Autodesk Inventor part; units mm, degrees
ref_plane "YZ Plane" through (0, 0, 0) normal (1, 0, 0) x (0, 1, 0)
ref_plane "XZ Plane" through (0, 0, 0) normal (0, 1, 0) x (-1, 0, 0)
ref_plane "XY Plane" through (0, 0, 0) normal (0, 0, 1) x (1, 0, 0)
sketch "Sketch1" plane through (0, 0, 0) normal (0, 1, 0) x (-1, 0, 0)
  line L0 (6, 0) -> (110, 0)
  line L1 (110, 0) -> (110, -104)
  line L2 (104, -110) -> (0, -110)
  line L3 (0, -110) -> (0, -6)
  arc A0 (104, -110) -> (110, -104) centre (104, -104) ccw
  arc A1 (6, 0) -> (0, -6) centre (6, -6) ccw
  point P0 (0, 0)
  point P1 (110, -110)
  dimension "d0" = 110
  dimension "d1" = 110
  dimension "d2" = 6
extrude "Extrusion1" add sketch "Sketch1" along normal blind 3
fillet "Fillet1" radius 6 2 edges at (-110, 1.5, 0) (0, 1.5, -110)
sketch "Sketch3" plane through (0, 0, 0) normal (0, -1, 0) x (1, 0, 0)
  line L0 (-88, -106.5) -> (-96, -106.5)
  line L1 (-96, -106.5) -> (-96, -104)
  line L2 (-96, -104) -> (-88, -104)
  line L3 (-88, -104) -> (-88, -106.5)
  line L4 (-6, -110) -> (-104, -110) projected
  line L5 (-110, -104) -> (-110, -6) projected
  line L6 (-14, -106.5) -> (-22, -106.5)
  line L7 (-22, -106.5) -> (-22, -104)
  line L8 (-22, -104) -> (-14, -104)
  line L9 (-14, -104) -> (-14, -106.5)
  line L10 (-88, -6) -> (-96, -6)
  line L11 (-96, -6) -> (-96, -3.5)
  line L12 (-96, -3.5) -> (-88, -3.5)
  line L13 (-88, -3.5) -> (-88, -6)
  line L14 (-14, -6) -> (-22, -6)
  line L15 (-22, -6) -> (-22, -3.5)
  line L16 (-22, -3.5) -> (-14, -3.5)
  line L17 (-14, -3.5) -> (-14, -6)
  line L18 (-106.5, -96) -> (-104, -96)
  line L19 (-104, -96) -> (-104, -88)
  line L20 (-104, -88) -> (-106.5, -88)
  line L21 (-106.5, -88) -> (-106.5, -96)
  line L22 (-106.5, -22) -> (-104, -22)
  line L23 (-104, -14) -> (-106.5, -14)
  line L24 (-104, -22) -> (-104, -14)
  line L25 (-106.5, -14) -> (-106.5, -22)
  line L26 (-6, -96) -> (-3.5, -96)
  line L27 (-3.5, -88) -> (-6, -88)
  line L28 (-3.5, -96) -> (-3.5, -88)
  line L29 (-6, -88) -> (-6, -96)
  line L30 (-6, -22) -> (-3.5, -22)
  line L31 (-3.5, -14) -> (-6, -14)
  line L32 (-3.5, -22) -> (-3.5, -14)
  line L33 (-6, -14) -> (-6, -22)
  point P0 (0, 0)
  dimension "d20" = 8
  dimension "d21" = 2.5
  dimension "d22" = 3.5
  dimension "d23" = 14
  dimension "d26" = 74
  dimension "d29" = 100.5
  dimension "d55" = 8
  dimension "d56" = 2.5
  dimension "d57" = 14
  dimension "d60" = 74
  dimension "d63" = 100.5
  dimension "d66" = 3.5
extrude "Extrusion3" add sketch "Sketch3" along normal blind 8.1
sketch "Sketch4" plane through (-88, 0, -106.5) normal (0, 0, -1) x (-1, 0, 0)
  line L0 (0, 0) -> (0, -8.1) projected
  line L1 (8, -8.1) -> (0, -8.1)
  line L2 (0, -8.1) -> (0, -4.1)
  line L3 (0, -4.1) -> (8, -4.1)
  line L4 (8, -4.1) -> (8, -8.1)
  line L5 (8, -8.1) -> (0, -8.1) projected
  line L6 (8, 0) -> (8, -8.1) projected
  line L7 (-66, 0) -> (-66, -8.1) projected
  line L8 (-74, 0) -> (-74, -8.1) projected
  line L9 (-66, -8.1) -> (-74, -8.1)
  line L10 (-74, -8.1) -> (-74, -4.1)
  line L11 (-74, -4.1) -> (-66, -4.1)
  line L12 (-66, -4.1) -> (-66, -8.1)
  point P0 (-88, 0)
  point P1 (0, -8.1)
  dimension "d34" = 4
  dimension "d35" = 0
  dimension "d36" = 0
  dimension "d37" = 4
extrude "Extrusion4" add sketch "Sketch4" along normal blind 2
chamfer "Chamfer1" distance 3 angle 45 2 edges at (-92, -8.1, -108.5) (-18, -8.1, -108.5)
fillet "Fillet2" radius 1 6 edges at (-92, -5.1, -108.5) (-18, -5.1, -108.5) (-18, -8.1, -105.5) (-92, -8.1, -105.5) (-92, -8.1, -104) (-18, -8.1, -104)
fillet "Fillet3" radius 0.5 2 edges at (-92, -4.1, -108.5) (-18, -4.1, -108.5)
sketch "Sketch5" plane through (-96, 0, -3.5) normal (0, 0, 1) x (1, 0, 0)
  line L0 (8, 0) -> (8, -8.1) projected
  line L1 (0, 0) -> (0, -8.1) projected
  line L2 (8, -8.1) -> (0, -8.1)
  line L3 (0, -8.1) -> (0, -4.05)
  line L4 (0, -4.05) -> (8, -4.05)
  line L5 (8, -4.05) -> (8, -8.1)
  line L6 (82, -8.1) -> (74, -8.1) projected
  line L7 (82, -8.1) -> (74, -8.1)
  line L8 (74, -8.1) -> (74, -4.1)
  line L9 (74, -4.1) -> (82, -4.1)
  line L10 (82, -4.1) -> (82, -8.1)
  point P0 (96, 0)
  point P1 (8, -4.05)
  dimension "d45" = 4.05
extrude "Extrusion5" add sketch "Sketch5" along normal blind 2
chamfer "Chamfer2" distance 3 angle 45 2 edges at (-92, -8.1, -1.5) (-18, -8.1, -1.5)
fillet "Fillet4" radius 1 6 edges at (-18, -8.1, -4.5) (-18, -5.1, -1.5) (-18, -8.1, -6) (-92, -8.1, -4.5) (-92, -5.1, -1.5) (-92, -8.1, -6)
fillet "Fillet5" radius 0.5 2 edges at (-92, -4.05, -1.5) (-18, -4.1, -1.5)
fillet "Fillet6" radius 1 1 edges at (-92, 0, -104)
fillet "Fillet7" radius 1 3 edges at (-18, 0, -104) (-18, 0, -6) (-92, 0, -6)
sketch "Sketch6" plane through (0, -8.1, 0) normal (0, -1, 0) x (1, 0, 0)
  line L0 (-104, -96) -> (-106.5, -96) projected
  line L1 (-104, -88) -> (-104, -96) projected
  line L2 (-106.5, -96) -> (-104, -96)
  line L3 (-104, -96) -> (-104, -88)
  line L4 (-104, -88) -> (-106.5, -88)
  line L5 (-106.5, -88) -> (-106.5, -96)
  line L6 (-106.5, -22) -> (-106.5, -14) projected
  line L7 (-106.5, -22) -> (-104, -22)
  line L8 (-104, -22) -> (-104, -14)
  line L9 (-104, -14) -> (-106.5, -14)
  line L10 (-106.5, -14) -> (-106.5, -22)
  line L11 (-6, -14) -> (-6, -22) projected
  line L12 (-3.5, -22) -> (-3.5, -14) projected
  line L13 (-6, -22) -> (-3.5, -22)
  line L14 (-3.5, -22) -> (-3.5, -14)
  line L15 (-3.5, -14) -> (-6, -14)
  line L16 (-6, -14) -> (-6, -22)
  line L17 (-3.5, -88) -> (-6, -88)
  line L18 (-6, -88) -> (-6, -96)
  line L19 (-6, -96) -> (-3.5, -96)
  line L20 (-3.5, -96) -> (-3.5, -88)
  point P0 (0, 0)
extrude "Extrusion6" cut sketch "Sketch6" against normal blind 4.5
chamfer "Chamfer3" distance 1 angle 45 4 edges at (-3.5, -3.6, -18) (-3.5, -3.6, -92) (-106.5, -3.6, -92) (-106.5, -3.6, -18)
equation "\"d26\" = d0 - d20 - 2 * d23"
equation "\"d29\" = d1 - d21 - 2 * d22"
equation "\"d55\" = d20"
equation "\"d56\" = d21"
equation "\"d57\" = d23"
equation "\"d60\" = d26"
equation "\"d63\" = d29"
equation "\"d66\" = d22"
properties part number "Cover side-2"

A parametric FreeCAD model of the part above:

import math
import FreeCAD as App
import Part
import Sketcher


def edges_at(feature, points):
    """Names of the edges that pass closest to the given points."""
    edges = feature.Shape.Edges
    near = lambda p: min(range(len(edges)), key=lambda i: edges[i].distToShape(Part.Vertex(*p))[0])
    return sorted({f"Edge{near(p) + 1}" for p in points})

doc = App.newDocument("Part")
params = doc.addObject("Spreadsheet::Sheet", "Params")
for row, (alias, value) in enumerate([
    ("sketch1_radius", "6 mm"),
    ("pad1_length", "3 mm"),
    ("fillet_radius", "6 mm"),
    ("sketch2_width", "8 mm"),
    ("sketch2_width2", "2.5 mm"),
    ("pad2_length", "8.1 mm"),
    ("sketch3_height", "4 mm"),
    ("sketch3_width", "8 mm"),
    ("pad3_length", "2 mm"),
    ("chamfer_size", "3 mm"),
    ("fillet2_radius", "1 mm"),
    ("fillet3_radius", "0.5 mm"),
    ("sketch4_height", "4.05 mm"),
    ("sketch4_width", "8 mm"),
    ("sketch4_height2", "4 mm"),
    ("pad4_length", "2 mm"),
    ("chamfer2_size", "3 mm"),
    ("fillet4_radius", "1 mm"),
    ("fillet5_radius", "0.5 mm"),
    ("fillet6_radius", "1 mm"),
    ("fillet7_radius", "1 mm"),
    ("sketch5_height", "8 mm"),
    ("sketch5_width", "2.5 mm"),
    ("pocket1_length", "4.5 mm"),
    ("chamfer3_size", "1 mm"),
], start=1):
    params.set(f"A{row}", alias)
    params.set(f"B{row}", "=" + value)
    params.setAlias(f"B{row}", alias)

body = doc.addObject("PartDesign::Body", "Body")

sketch1 = body.newObject("Sketcher::SketchObject", "Sketch")
sketch1.AttachmentSupport = (doc.getObject("XZ_Plane"), [""])
sketch1.MapMode = "FlatFace"
sketch1.addGeometry([
    Part.LineSegment(App.Vector(-110, 0, 0), App.Vector(-6, 0, 0)),
    Part.ArcOfCircle(Part.Circle(App.Vector(-6, -6, 0), App.Vector(0, 0, 1), 6), math.radians(0), math.radians(90)),
    Part.LineSegment(App.Vector(0, -6, 0), App.Vector(0, -110, 0)),
    Part.LineSegment(App.Vector(0, -110, 0), App.Vector(-104, -110, 0)),
    Part.ArcOfCircle(Part.Circle(App.Vector(-104, -104, 0), App.Vector(0, 0, 1), 6), math.radians(180), math.radians(270)),
    Part.LineSegment(App.Vector(-110, -104, 0), App.Vector(-110, 0, 0)),
], False)
sketch1.addConstraint([
    Sketcher.Constraint("Tangent", 0, 2, 1, 2),
    Sketcher.Constraint("Tangent", 1, 1, 2, 1),
    Sketcher.Constraint("Coincident", 2, 2, 3, 1),
    Sketcher.Constraint("Tangent", 3, 2, 4, 2),
    Sketcher.Constraint("Tangent", 4, 1, 5, 1),
    Sketcher.Constraint("Coincident", 5, 2, 0, 1),
    Sketcher.Constraint("Horizontal", 0),
    Sketcher.Constraint("Vertical", 2),
    Sketcher.Constraint("Horizontal", 3),
    Sketcher.Constraint("Vertical", 5),
    Sketcher.Constraint("Equal", 1, 4),
    Sketcher.Constraint("PointOnObject", 0, 2, -1),
    Sketcher.Constraint("PointOnObject", 1, 1, -2),
    Sketcher.Constraint("Equal", 3, 2),
    Sketcher.Constraint("Radius", 1, 6.0),
    Sketcher.Constraint("DistanceY", 2, 2, -1, 1, 110.0),
])
sketch1.setExpression("Constraints[14]", "Params.sketch1_radius")
pad1 = body.newObject("PartDesign::Pad", "Pad")
pad1.Profile = sketch1
pad1.setExpression("Length", "Params.pad1_length")
pad1.Reversed = True
doc.recompute()

fillet = body.newObject("PartDesign::Fillet", "Fillet")
fillet.Base = (pad1, edges_at(pad1, [(-110, 1.5, 0), (0, 1.5, -110)]))
fillet.setExpression("Radius", "Params.fillet_radius")

sketch2 = body.newObject("Sketcher::SketchObject", "Sketch001")
sketch2.AttachmentSupport = (doc.getObject("XZ_Plane"), [""])
sketch2.MapMode = "FlatFace"
sketch2.addGeometry([
    Part.LineSegment(App.Vector(-96, -106.5, 0), App.Vector(-88, -106.5, 0)),
    Part.LineSegment(App.Vector(-88, -106.5, 0), App.Vector(-88, -104, 0)),
    Part.LineSegment(App.Vector(-88, -104, 0), App.Vector(-96, -104, 0)),
    Part.LineSegment(App.Vector(-96, -104, 0), App.Vector(-96, -106.5, 0)),
    Part.LineSegment(App.Vector(-22, -106.5, 0), App.Vector(-14, -106.5, 0)),
    Part.LineSegment(App.Vector(-14, -106.5, 0), App.Vector(-14, -104, 0)),
    Part.LineSegment(App.Vector(-14, -104, 0), App.Vector(-22, -104, 0)),
    Part.LineSegment(App.Vector(-22, -104, 0), App.Vector(-22, -106.5, 0)),
    Part.LineSegment(App.Vector(-96, -6, 0), App.Vector(-88, -6, 0)),
    Part.LineSegment(App.Vector(-88, -6, 0), App.Vector(-88, -3.5, 0)),
    Part.LineSegment(App.Vector(-88, -3.5, 0), App.Vector(-96, -3.5, 0)),
    Part.LineSegment(App.Vector(-96, -3.5, 0), App.Vector(-96, -6, 0)),
    Part.LineSegment(App.Vector(-22, -6, 0), App.Vector(-14, -6, 0)),
    Part.LineSegment(App.Vector(-14, -6, 0), App.Vector(-14, -3.5, 0)),
    Part.LineSegment(App.Vector(-14, -3.5, 0), App.Vector(-22, -3.5, 0)),
    Part.LineSegment(App.Vector(-22, -3.5, 0), App.Vector(-22, -6, 0)),
    Part.LineSegment(App.Vector(-106.5, -88, 0), App.Vector(-106.5, -96, 0)),
    Part.LineSegment(App.Vector(-106.5, -96, 0), App.Vector(-104, -96, 0)),
    Part.LineSegment(App.Vector(-104, -96, 0), App.Vector(-104, -88, 0)),
    Part.LineSegment(App.Vector(-104, -88, 0), App.Vector(-106.5, -88, 0)),
    Part.LineSegment(App.Vector(-106.5, -14, 0), App.Vector(-106.5, -22, 0)),
    Part.LineSegment(App.Vector(-106.5, -22, 0), App.Vector(-104, -22, 0)),
    Part.LineSegment(App.Vector(-104, -22, 0), App.Vector(-104, -14, 0)),
    Part.LineSegment(App.Vector(-104, -14, 0), App.Vector(-106.5, -14, 0)),
    Part.LineSegment(App.Vector(-6, -88, 0), App.Vector(-6, -96, 0)),
    Part.LineSegment(App.Vector(-6, -96, 0), App.Vector(-3.5, -96, 0)),
    Part.LineSegment(App.Vector(-3.5, -96, 0), App.Vector(-3.5, -88, 0)),
    Part.LineSegment(App.Vector(-3.5, -88, 0), App.Vector(-6, -88, 0)),
    Part.LineSegment(App.Vector(-6, -14, 0), App.Vector(-6, -22, 0)),
    Part.LineSegment(App.Vector(-6, -22, 0), App.Vector(-3.5, -22, 0)),
    Part.LineSegment(App.Vector(-3.5, -22, 0), App.Vector(-3.5, -14, 0)),
    Part.LineSegment(App.Vector(-3.5, -14, 0), App.Vector(-6, -14, 0)),
], False)
sketch2.addConstraint([
    Sketcher.Constraint("Coincident", 0, 2, 1, 1),
    Sketcher.Constraint("Coincident", 1, 2, 2, 1),
    Sketcher.Constraint("Coincident", 2, 2, 3, 1),
    Sketcher.Constraint("Coincident", 3, 2, 0, 1),
    Sketcher.Constraint("Coincident", 4, 2, 5, 1),
    Sketcher.Constraint("Coincident", 5, 2, 6, 1),
    Sketcher.Constraint("Coincident", 6, 2, 7, 1),
    Sketcher.Constraint("Coincident", 7, 2, 4, 1),
    Sketcher.Constraint("Coincident", 8, 2, 9, 1),
    Sketcher.Constraint("Coincident", 9, 2, 10, 1),
    Sketcher.Constraint("Coincident", 10, 2, 11, 1),
    Sketcher.Constraint("Coincident", 11, 2, 8, 1),
    Sketcher.Constraint("Coincident", 12, 2, 13, 1),
    Sketcher.Constraint("Coincident", 13, 2, 14, 1),
    Sketcher.Constraint("Coincident", 14, 2, 15, 1),
    Sketcher.Constraint("Coincident", 15, 2, 12, 1),
    Sketcher.Constraint("Coincident", 16, 2, 17, 1),
    Sketcher.Constraint("Coincident", 17, 2, 18, 1),
    Sketcher.Constraint("Coincident", 18, 2, 19, 1),
    Sketcher.Constraint("Coincident", 19, 2, 16, 1),
    Sketcher.Constraint("Coincident", 20, 2, 21, 1),
    Sketcher.Constraint("Coincident", 21, 2, 22, 1),
    Sketcher.Constraint("Coincident", 22, 2, 23, 1),
    Sketcher.Constraint("Coincident", 23, 2, 20, 1),
    Sketcher.Constraint("Coincident", 24, 2, 25, 1),
    Sketcher.Constraint("Coincident", 25, 2, 26, 1),
    Sketcher.Constraint("Coincident", 26, 2, 27, 1),
    Sketcher.Constraint("Coincident", 27, 2, 24, 1),
    Sketcher.Constraint("Coincident", 28, 2, 29, 1),
    Sketcher.Constraint("Coincident", 29, 2, 30, 1),
    Sketcher.Constraint("Coincident", 30, 2, 31, 1),
    Sketcher.Constraint("Coincident", 31, 2, 28, 1),
    Sketcher.Constraint("Horizontal", 0),
    Sketcher.Constraint("Vertical", 1),
    Sketcher.Constraint("Horizontal", 2),
    Sketcher.Constraint("Vertical", 3),
    Sketcher.Constraint("Horizontal", 4),
    Sketcher.Constraint("Vertical", 5),
    Sketcher.Constraint("Horizontal", 6),
    Sketcher.Constraint("Vertical", 7),
    Sketcher.Constraint("Horizontal", 8),
    Sketcher.Constraint("Vertical", 9),
    Sketcher.Constraint("Horizontal", 10),
    Sketcher.Constraint("Vertical", 11),
    Sketcher.Constraint("Horizontal", 12),
    Sketcher.Constraint("Vertical", 13),
    Sketcher.Constraint("Horizontal", 14),
    Sketcher.Constraint("Vertical", 15),
    Sketcher.Constraint("Vertical", 16),
    Sketcher.Constraint("Horizontal", 17),
    Sketcher.Constraint("Vertical", 18),
    Sketcher.Constraint("Horizontal", 19),
    Sketcher.Constraint("Vertical", 20),
    Sketcher.Constraint("Horizontal", 21),
    Sketcher.Constraint("Vertical", 22),
    Sketcher.Constraint("Horizontal", 23),
    Sketcher.Constraint("Vertical", 24),
    Sketcher.Constraint("Horizontal", 25),
    Sketcher.Constraint("Vertical", 26),
    Sketcher.Constraint("Horizontal", 27),
    Sketcher.Constraint("Vertical", 28),
    Sketcher.Constraint("Horizontal", 29),
    Sketcher.Constraint("Vertical", 30),
    Sketcher.Constraint("Horizontal", 31),
    Sketcher.Constraint("Horizontal", 3, 2, 4, 2),
    Sketcher.Constraint("Horizontal", 2, 2, 5, 2),
    Sketcher.Constraint("Horizontal", 11, 2, 12, 2),
    Sketcher.Constraint("Horizontal", 10, 2, 13, 2),
    Sketcher.Constraint("Horizontal", 17, 2, 24, 2),
    Sketcher.Constraint("Horizontal", 19, 2, 26, 2),
    Sketcher.Constraint("Horizontal", 21, 2, 28, 2),
    Sketcher.Constraint("Horizontal", 23, 2, 30, 2),
    Sketcher.Constraint("Vertical", 1, 2, 8, 2),
    Sketcher.Constraint("Vertical", 3, 2, 10, 2),
    Sketcher.Constraint("Vertical", 5, 2, 12, 2),
    Sketcher.Constraint("Vertical", 7, 2, 14, 2),
    Sketcher.Constraint("Vertical", 19, 2, 20, 2),
    Sketcher.Constraint("Vertical", 18, 2, 21, 2),
    Sketcher.Constraint("Vertical", 27, 2, 28, 2),
    Sketcher.Constraint("Vertical", 26, 2, 29, 2),
    Sketcher.Constraint("Equal", 2, 4),
    Sketcher.Constraint("Equal", 23, 25),
    Sketcher.Constraint("Equal", 31, 1),
    Sketcher.Constraint("Equal", 7, 9),
    Sketcher.Constraint("Equal", 14, 16),
    Sketcher.Constraint("Equal", 18, 20),
    Sketcher.Constraint("DistanceX", 0, 1, 0, 2, 8.0),
    Sketcher.Constraint("DistanceX", 17, 1, 17, 2, 2.5),
    Sketcher.Constraint("DistanceX", 4, 2, -1, 1, 14.0),
    Sketcher.Constraint("DistanceY", 22, 2, -1, 1, 14.0),
    Sketcher.Constraint("DistanceX", 0, 2, 4, 2, 74.0),
    Sketcher.Constraint("DistanceY", 2, 2, 16, 2, 8.0),
    Sketcher.Constraint("DistanceX", 17, 2, 2, 2, 8.0),
    Sketcher.Constraint("DistanceY", 22, 2, 11, 2, 8.0),
    Sketcher.Constraint("DistanceX", 5, 2, 24, 2, 8.0),
    Sketcher.Constraint("DistanceY", 0, 2, 8, 2, 100.5),
])
sketch2.setExpression("Constraints[86]", "Params.sketch2_width")
sketch2.setExpression("Constraints[87]", "Params.sketch2_width2")
pad2 = body.newObject("PartDesign::Pad", "Pad001")
pad2.Profile = sketch2
pad2.setExpression("Length", "Params.pad2_length")

sketch3 = body.newObject("Sketcher::SketchObject", "Sketch002")
sketch3.AttachmentSupport = (doc.getObject("XY_Plane"), [""])
sketch3.MapMode = "FlatFace"
sketch3.AttachmentOffset = App.Placement(App.Vector(0, 0, -106.5), App.Rotation())
sketch3.addGeometry([
    Part.LineSegment(App.Vector(-96, -4.1, 0), App.Vector(-88, -4.1, 0)),
    Part.LineSegment(App.Vector(-88, -4.1, 0), App.Vector(-88, -8.1, 0)),
    Part.LineSegment(App.Vector(-88, -8.1, 0), App.Vector(-96, -8.1, 0)),
    Part.LineSegment(App.Vector(-96, -8.1, 0), App.Vector(-96, -4.1, 0)),
    Part.LineSegment(App.Vector(-22, -8.1, 0), App.Vector(-22, -4.1, 0)),
    Part.LineSegment(App.Vector(-22, -4.1, 0), App.Vector(-14, -4.1, 0)),
    Part.LineSegment(App.Vector(-14, -4.1, 0), App.Vector(-14, -8.1, 0)),
    Part.LineSegment(App.Vector(-14, -8.1, 0), App.Vector(-22, -8.1, 0)),
], False)
sketch3.addConstraint([
    Sketcher.Constraint("Coincident", 0, 2, 1, 1),
    Sketcher.Constraint("Coincident", 1, 2, 2, 1),
    Sketcher.Constraint("Coincident", 2, 2, 3, 1),
    Sketcher.Constraint("Coincident", 3, 2, 0, 1),
    Sketcher.Constraint("Coincident", 4, 2, 5, 1),
    Sketcher.Constraint("Coincident", 5, 2, 6, 1),
    Sketcher.Constraint("Coincident", 6, 2, 7, 1),
    Sketcher.Constraint("Coincident", 7, 2, 4, 1),
    Sketcher.Constraint("Horizontal", 0),
    Sketcher.Constraint("Vertical", 1),
    Sketcher.Constraint("Horizontal", 2),
    Sketcher.Constraint("Vertical", 3),
    Sketcher.Constraint("Vertical", 4),
    Sketcher.Constraint("Horizontal", 5),
    Sketcher.Constraint("Vertical", 6),
    Sketcher.Constraint("Horizontal", 7),
    Sketcher.Constraint("Horizontal", 3, 2, 4, 2),
    Sketcher.Constraint("Horizontal", 2, 2, 6, 2),
    Sketcher.Constraint("Equal", 2, 5),
    Sketcher.Constraint("DistanceY", 1, 2, 1, 1, 4.0),
    Sketcher.Constraint("DistanceX", 0, 1, 0, 2, 8.0),
    Sketcher.Constraint("DistanceX", 0, 2, -1, 1, 88.0),
    Sketcher.Constraint("DistanceX", 4, 2, -1, 1, 22.0),
    Sketcher.Constraint("DistanceY", 0, 2, -1, 1, 4.1),
])
sketch3.setExpression("Constraints[19]", "Params.sketch3_height")
sketch3.setExpression("Constraints[20]", "Params.sketch3_width")
pad3 = body.newObject("PartDesign::Pad", "Pad002")
pad3.Profile = sketch3
pad3.setExpression("Length", "Params.pad3_length")
pad3.Reversed = True
doc.recompute()

chamfer = body.newObject("PartDesign::Chamfer", "Chamfer")
chamfer.Base = (pad3, edges_at(pad3, [(-92, -8.1, -108.5), (-18, -8.1, -108.5)]))
chamfer.setExpression("Size", "Params.chamfer_size")
doc.recompute()

fillet2 = body.newObject("PartDesign::Fillet", "Fillet001")
fillet2.Base = (chamfer, edges_at(chamfer, [
    (-92, -5.1, -108.5),
    (-18, -5.1, -108.5),
    (-18, -8.1, -105.5),
    (-92, -8.1, -105.5),
    (-92, -8.1, -104),
    (-18, -8.1, -104),
]))
fillet2.setExpression("Radius", "Params.fillet2_radius")
doc.recompute()

fillet3 = body.newObject("PartDesign::Fillet", "Fillet002")
fillet3.Base = (fillet2, edges_at(fillet2, [(-92, -4.1, -108.5), (-18, -4.1, -108.5)]))
fillet3.setExpression("Radius", "Params.fillet3_radius")

sketch4 = body.newObject("Sketcher::SketchObject", "Sketch003")
sketch4.AttachmentSupport = (doc.getObject("XY_Plane"), [""])
sketch4.MapMode = "FlatFace"
sketch4.AttachmentOffset = App.Placement(App.Vector(0, 0, -3.5), App.Rotation())
sketch4.addGeometry([
    Part.LineSegment(App.Vector(-88, -8.1, 0), App.Vector(-88, -4.05, 0)),
    Part.LineSegment(App.Vector(-88, -4.05, 0), App.Vector(-96, -4.05, 0)),
    Part.LineSegment(App.Vector(-96, -4.05, 0), App.Vector(-96, -8.1, 0)),
    Part.LineSegment(App.Vector(-96, -8.1, 0), App.Vector(-88, -8.1, 0)),
    Part.LineSegment(App.Vector(-22, -8.1, 0), App.Vector(-14, -8.1, 0)),
    Part.LineSegment(App.Vector(-14, -8.1, 0), App.Vector(-14, -4.1, 0)),
    Part.LineSegment(App.Vector(-14, -4.1, 0), App.Vector(-22, -4.1, 0)),
    Part.LineSegment(App.Vector(-22, -4.1, 0), App.Vector(-22, -8.1, 0)),
], False)
sketch4.addConstraint([
    Sketcher.Constraint("Coincident", 0, 2, 1, 1),
    Sketcher.Constraint("Coincident", 1, 2, 2, 1),
    Sketcher.Constraint("Coincident", 2, 2, 3, 1),
    Sketcher.Constraint("Coincident", 3, 2, 0, 1),
    Sketcher.Constraint("Coincident", 4, 2, 5, 1),
    Sketcher.Constraint("Coincident", 5, 2, 6, 1),
    Sketcher.Constraint("Coincident", 6, 2, 7, 1),
    Sketcher.Constraint("Coincident", 7, 2, 4, 1),
    Sketcher.Constraint("Vertical", 0),
    Sketcher.Constraint("Horizontal", 1),
    Sketcher.Constraint("Vertical", 2),
    Sketcher.Constraint("Horizontal", 3),
    Sketcher.Constraint("Horizontal", 4),
    Sketcher.Constraint("Vertical", 5),
    Sketcher.Constraint("Horizontal", 6),
    Sketcher.Constraint("Vertical", 7),
    Sketcher.Constraint("Horizontal", 3, 2, 4, 2),
    Sketcher.Constraint("Equal", 3, 4),
    Sketcher.Constraint("DistanceY", 0, 1, 0, 2, 4.05),
    Sketcher.Constraint("DistanceX", 1, 2, 1, 1, 8.0),
    Sketcher.Constraint("DistanceY", 5, 1, 5, 2, 4.0),
    Sketcher.Constraint("DistanceY", 0, 2, -1, 1, 4.05),
    Sketcher.Constraint("DistanceX", 0, 2, -1, 1, 88.0),
    Sketcher.Constraint("DistanceX", 4, 2, -1, 1, 14.0),
])
sketch4.setExpression("Constraints[18]", "Params.sketch4_height")
sketch4.setExpression("Constraints[19]", "Params.sketch4_width")
sketch4.setExpression("Constraints[20]", "Params.sketch4_height2")
pad4 = body.newObject("PartDesign::Pad", "Pad003")
pad4.Profile = sketch4
pad4.setExpression("Length", "Params.pad4_length")
doc.recompute()

chamfer2 = body.newObject("PartDesign::Chamfer", "Chamfer001")
chamfer2.Base = (pad4, edges_at(pad4, [(-92, -8.1, -1.5), (-18, -8.1, -1.5)]))
chamfer2.setExpression("Size", "Params.chamfer2_size")
doc.recompute()

fillet4 = body.newObject("PartDesign::Fillet", "Fillet003")
fillet4.Base = (chamfer2, edges_at(chamfer2, [
    (-18, -8.1, -4.5),
    (-18, -5.1, -1.5),
    (-18, -8.1, -6),
    (-92, -8.1, -4.5),
    (-92, -5.1, -1.5),
    (-92, -8.1, -6),
]))
fillet4.setExpression("Radius", "Params.fillet4_radius")
doc.recompute()

fillet5 = body.newObject("PartDesign::Fillet", "Fillet004")
fillet5.Base = (fillet4, edges_at(fillet4, [(-92, -4.05, -1.5), (-18, -4.1, -1.5)]))
fillet5.setExpression("Radius", "Params.fillet5_radius")
doc.recompute()

fillet6 = body.newObject("PartDesign::Fillet", "Fillet005")
fillet6.Base = (fillet5, edges_at(fillet5, [(-92, 0, -104)]))
fillet6.setExpression("Radius", "Params.fillet6_radius")
doc.recompute()

fillet7 = body.newObject("PartDesign::Fillet", "Fillet006")
fillet7.Base = (fillet6, edges_at(fillet6, [(-18, 0, -104), (-18, 0, -6), (-92, 0, -6)]))
fillet7.setExpression("Radius", "Params.fillet7_radius")

sketch5 = body.newObject("Sketcher::SketchObject", "Sketch004")
sketch5.AttachmentSupport = (doc.getObject("XZ_Plane"), [""])
sketch5.MapMode = "FlatFace"
sketch5.AttachmentOffset = App.Placement(App.Vector(0, 0, 8.1), App.Rotation())
sketch5.addGeometry([
    Part.LineSegment(App.Vector(-106.5, -96, 0), App.Vector(-104, -96, 0)),
    Part.LineSegment(App.Vector(-104, -96, 0), App.Vector(-104, -88, 0)),
    Part.LineSegment(App.Vector(-104, -88, 0), App.Vector(-106.5, -88, 0)),
    Part.LineSegment(App.Vector(-106.5, -88, 0), App.Vector(-106.5, -96, 0)),
    Part.LineSegment(App.Vector(-106.5, -14, 0), App.Vector(-106.5, -22, 0)),
    Part.LineSegment(App.Vector(-106.5, -22, 0), App.Vector(-104, -22, 0)),
    Part.LineSegment(App.Vector(-104, -22, 0), App.Vector(-104, -14, 0)),
    Part.LineSegment(App.Vector(-104, -14, 0), App.Vector(-106.5, -14, 0)),
    Part.LineSegment(App.Vector(-3.5, -14, 0), App.Vector(-6, -14, 0)),
    Part.LineSegment(App.Vector(-6, -14, 0), App.Vector(-6, -22, 0)),
    Part.LineSegment(App.Vector(-6, -22, 0), App.Vector(-3.5, -22, 0)),
    Part.LineSegment(App.Vector(-3.5, -22, 0), App.Vector(-3.5, -14, 0)),
    Part.LineSegment(App.Vector(-3.5, -96, 0), App.Vector(-3.5, -88, 0)),
    Part.LineSegment(App.Vector(-3.5, -88, 0), App.Vector(-6, -88, 0)),
    Part.LineSegment(App.Vector(-6, -88, 0), App.Vector(-6, -96, 0)),
    Part.LineSegment(App.Vector(-6, -96, 0), App.Vector(-3.5, -96, 0)),
], False)
sketch5.addConstraint([
    Sketcher.Constraint("Coincident", 0, 2, 1, 1),
    Sketcher.Constraint("Coincident", 1, 2, 2, 1),
    Sketcher.Constraint("Coincident", 2, 2, 3, 1),
    Sketcher.Constraint("Coincident", 3, 2, 0, 1),
    Sketcher.Constraint("Coincident", 4, 2, 5, 1),
    Sketcher.Constraint("Coincident", 5, 2, 6, 1),
    Sketcher.Constraint("Coincident", 6, 2, 7, 1),
    Sketcher.Constraint("Coincident", 7, 2, 4, 1),
    Sketcher.Constraint("Coincident", 8, 2, 9, 1),
    Sketcher.Constraint("Coincident", 9, 2, 10, 1),
    Sketcher.Constraint("Coincident", 10, 2, 11, 1),
    Sketcher.Constraint("Coincident", 11, 2, 8, 1),
    Sketcher.Constraint("Coincident", 12, 2, 13, 1),
    Sketcher.Constraint("Coincident", 13, 2, 14, 1),
    Sketcher.Constraint("Coincident", 14, 2, 15, 1),
    Sketcher.Constraint("Coincident", 15, 2, 12, 1),
    Sketcher.Constraint("Horizontal", 0),
    Sketcher.Constraint("Vertical", 1),
    Sketcher.Constraint("Horizontal", 2),
    Sketcher.Constraint("Vertical", 3),
    Sketcher.Constraint("Vertical", 4),
    Sketcher.Constraint("Horizontal", 5),
    Sketcher.Constraint("Vertical", 6),
    Sketcher.Constraint("Horizontal", 7),
    Sketcher.Constraint("Horizontal", 8),
    Sketcher.Constraint("Vertical", 9),
    Sketcher.Constraint("Horizontal", 10),
    Sketcher.Constraint("Vertical", 11),
    Sketcher.Constraint("Vertical", 12),
    Sketcher.Constraint("Horizontal", 13),
    Sketcher.Constraint("Vertical", 14),
    Sketcher.Constraint("Horizontal", 15),
    Sketcher.Constraint("Horizontal", 7, 2, 8, 2),
    Sketcher.Constraint("Horizontal", 5, 2, 9, 2),
    Sketcher.Constraint("Horizontal", 2, 2, 12, 2),
    Sketcher.Constraint("Horizontal", 3, 2, 14, 2),
    Sketcher.Constraint("Vertical", 3, 2, 4, 2),
    Sketcher.Constraint("Vertical", 1, 2, 5, 2),
    Sketcher.Constraint("Vertical", 11, 2, 12, 2),
    Sketcher.Constraint("Vertical", 9, 2, 13, 2),
    Sketcher.Constraint("Equal", 7, 8),
    Sketcher.Constraint("Equal", 3, 4),
    Sketcher.Constraint("DistanceY", 1, 1, 1, 2, 8.0),
    Sketcher.Constraint("DistanceX", 0, 1, 0, 2, 2.5),
    Sketcher.Constraint("DistanceX", 0, 2, -1, 1, 104.0),
    Sketcher.Constraint("DistanceY", 0, 2, -1, 1, 96.0),
    Sketcher.Constraint("DistanceY", 4, 2, -1, 1, 22.0),
    Sketcher.Constraint("DistanceX", 8, 2, -1, 1, 6.0),
])
sketch5.setExpression("Constraints[42]", "Params.sketch5_height")
sketch5.setExpression("Constraints[43]", "Params.sketch5_width")
pocket1 = body.newObject("PartDesign::Pocket", "Pocket")
pocket1.Profile = sketch5
pocket1.setExpression("Length", "Params.pocket1_length")
doc.recompute()

chamfer3 = body.newObject("PartDesign::Chamfer", "Chamfer002")
chamfer3.Base = (pocket1, edges_at(pocket1, [
    (-3.5, -3.6, -18),
    (-3.5, -3.6, -92),
    (-106.5, -3.6, -92),
    (-106.5, -3.6, -18),
]))
chamfer3.setExpression("Size", "Params.chamfer3_size")

doc.recompute()
